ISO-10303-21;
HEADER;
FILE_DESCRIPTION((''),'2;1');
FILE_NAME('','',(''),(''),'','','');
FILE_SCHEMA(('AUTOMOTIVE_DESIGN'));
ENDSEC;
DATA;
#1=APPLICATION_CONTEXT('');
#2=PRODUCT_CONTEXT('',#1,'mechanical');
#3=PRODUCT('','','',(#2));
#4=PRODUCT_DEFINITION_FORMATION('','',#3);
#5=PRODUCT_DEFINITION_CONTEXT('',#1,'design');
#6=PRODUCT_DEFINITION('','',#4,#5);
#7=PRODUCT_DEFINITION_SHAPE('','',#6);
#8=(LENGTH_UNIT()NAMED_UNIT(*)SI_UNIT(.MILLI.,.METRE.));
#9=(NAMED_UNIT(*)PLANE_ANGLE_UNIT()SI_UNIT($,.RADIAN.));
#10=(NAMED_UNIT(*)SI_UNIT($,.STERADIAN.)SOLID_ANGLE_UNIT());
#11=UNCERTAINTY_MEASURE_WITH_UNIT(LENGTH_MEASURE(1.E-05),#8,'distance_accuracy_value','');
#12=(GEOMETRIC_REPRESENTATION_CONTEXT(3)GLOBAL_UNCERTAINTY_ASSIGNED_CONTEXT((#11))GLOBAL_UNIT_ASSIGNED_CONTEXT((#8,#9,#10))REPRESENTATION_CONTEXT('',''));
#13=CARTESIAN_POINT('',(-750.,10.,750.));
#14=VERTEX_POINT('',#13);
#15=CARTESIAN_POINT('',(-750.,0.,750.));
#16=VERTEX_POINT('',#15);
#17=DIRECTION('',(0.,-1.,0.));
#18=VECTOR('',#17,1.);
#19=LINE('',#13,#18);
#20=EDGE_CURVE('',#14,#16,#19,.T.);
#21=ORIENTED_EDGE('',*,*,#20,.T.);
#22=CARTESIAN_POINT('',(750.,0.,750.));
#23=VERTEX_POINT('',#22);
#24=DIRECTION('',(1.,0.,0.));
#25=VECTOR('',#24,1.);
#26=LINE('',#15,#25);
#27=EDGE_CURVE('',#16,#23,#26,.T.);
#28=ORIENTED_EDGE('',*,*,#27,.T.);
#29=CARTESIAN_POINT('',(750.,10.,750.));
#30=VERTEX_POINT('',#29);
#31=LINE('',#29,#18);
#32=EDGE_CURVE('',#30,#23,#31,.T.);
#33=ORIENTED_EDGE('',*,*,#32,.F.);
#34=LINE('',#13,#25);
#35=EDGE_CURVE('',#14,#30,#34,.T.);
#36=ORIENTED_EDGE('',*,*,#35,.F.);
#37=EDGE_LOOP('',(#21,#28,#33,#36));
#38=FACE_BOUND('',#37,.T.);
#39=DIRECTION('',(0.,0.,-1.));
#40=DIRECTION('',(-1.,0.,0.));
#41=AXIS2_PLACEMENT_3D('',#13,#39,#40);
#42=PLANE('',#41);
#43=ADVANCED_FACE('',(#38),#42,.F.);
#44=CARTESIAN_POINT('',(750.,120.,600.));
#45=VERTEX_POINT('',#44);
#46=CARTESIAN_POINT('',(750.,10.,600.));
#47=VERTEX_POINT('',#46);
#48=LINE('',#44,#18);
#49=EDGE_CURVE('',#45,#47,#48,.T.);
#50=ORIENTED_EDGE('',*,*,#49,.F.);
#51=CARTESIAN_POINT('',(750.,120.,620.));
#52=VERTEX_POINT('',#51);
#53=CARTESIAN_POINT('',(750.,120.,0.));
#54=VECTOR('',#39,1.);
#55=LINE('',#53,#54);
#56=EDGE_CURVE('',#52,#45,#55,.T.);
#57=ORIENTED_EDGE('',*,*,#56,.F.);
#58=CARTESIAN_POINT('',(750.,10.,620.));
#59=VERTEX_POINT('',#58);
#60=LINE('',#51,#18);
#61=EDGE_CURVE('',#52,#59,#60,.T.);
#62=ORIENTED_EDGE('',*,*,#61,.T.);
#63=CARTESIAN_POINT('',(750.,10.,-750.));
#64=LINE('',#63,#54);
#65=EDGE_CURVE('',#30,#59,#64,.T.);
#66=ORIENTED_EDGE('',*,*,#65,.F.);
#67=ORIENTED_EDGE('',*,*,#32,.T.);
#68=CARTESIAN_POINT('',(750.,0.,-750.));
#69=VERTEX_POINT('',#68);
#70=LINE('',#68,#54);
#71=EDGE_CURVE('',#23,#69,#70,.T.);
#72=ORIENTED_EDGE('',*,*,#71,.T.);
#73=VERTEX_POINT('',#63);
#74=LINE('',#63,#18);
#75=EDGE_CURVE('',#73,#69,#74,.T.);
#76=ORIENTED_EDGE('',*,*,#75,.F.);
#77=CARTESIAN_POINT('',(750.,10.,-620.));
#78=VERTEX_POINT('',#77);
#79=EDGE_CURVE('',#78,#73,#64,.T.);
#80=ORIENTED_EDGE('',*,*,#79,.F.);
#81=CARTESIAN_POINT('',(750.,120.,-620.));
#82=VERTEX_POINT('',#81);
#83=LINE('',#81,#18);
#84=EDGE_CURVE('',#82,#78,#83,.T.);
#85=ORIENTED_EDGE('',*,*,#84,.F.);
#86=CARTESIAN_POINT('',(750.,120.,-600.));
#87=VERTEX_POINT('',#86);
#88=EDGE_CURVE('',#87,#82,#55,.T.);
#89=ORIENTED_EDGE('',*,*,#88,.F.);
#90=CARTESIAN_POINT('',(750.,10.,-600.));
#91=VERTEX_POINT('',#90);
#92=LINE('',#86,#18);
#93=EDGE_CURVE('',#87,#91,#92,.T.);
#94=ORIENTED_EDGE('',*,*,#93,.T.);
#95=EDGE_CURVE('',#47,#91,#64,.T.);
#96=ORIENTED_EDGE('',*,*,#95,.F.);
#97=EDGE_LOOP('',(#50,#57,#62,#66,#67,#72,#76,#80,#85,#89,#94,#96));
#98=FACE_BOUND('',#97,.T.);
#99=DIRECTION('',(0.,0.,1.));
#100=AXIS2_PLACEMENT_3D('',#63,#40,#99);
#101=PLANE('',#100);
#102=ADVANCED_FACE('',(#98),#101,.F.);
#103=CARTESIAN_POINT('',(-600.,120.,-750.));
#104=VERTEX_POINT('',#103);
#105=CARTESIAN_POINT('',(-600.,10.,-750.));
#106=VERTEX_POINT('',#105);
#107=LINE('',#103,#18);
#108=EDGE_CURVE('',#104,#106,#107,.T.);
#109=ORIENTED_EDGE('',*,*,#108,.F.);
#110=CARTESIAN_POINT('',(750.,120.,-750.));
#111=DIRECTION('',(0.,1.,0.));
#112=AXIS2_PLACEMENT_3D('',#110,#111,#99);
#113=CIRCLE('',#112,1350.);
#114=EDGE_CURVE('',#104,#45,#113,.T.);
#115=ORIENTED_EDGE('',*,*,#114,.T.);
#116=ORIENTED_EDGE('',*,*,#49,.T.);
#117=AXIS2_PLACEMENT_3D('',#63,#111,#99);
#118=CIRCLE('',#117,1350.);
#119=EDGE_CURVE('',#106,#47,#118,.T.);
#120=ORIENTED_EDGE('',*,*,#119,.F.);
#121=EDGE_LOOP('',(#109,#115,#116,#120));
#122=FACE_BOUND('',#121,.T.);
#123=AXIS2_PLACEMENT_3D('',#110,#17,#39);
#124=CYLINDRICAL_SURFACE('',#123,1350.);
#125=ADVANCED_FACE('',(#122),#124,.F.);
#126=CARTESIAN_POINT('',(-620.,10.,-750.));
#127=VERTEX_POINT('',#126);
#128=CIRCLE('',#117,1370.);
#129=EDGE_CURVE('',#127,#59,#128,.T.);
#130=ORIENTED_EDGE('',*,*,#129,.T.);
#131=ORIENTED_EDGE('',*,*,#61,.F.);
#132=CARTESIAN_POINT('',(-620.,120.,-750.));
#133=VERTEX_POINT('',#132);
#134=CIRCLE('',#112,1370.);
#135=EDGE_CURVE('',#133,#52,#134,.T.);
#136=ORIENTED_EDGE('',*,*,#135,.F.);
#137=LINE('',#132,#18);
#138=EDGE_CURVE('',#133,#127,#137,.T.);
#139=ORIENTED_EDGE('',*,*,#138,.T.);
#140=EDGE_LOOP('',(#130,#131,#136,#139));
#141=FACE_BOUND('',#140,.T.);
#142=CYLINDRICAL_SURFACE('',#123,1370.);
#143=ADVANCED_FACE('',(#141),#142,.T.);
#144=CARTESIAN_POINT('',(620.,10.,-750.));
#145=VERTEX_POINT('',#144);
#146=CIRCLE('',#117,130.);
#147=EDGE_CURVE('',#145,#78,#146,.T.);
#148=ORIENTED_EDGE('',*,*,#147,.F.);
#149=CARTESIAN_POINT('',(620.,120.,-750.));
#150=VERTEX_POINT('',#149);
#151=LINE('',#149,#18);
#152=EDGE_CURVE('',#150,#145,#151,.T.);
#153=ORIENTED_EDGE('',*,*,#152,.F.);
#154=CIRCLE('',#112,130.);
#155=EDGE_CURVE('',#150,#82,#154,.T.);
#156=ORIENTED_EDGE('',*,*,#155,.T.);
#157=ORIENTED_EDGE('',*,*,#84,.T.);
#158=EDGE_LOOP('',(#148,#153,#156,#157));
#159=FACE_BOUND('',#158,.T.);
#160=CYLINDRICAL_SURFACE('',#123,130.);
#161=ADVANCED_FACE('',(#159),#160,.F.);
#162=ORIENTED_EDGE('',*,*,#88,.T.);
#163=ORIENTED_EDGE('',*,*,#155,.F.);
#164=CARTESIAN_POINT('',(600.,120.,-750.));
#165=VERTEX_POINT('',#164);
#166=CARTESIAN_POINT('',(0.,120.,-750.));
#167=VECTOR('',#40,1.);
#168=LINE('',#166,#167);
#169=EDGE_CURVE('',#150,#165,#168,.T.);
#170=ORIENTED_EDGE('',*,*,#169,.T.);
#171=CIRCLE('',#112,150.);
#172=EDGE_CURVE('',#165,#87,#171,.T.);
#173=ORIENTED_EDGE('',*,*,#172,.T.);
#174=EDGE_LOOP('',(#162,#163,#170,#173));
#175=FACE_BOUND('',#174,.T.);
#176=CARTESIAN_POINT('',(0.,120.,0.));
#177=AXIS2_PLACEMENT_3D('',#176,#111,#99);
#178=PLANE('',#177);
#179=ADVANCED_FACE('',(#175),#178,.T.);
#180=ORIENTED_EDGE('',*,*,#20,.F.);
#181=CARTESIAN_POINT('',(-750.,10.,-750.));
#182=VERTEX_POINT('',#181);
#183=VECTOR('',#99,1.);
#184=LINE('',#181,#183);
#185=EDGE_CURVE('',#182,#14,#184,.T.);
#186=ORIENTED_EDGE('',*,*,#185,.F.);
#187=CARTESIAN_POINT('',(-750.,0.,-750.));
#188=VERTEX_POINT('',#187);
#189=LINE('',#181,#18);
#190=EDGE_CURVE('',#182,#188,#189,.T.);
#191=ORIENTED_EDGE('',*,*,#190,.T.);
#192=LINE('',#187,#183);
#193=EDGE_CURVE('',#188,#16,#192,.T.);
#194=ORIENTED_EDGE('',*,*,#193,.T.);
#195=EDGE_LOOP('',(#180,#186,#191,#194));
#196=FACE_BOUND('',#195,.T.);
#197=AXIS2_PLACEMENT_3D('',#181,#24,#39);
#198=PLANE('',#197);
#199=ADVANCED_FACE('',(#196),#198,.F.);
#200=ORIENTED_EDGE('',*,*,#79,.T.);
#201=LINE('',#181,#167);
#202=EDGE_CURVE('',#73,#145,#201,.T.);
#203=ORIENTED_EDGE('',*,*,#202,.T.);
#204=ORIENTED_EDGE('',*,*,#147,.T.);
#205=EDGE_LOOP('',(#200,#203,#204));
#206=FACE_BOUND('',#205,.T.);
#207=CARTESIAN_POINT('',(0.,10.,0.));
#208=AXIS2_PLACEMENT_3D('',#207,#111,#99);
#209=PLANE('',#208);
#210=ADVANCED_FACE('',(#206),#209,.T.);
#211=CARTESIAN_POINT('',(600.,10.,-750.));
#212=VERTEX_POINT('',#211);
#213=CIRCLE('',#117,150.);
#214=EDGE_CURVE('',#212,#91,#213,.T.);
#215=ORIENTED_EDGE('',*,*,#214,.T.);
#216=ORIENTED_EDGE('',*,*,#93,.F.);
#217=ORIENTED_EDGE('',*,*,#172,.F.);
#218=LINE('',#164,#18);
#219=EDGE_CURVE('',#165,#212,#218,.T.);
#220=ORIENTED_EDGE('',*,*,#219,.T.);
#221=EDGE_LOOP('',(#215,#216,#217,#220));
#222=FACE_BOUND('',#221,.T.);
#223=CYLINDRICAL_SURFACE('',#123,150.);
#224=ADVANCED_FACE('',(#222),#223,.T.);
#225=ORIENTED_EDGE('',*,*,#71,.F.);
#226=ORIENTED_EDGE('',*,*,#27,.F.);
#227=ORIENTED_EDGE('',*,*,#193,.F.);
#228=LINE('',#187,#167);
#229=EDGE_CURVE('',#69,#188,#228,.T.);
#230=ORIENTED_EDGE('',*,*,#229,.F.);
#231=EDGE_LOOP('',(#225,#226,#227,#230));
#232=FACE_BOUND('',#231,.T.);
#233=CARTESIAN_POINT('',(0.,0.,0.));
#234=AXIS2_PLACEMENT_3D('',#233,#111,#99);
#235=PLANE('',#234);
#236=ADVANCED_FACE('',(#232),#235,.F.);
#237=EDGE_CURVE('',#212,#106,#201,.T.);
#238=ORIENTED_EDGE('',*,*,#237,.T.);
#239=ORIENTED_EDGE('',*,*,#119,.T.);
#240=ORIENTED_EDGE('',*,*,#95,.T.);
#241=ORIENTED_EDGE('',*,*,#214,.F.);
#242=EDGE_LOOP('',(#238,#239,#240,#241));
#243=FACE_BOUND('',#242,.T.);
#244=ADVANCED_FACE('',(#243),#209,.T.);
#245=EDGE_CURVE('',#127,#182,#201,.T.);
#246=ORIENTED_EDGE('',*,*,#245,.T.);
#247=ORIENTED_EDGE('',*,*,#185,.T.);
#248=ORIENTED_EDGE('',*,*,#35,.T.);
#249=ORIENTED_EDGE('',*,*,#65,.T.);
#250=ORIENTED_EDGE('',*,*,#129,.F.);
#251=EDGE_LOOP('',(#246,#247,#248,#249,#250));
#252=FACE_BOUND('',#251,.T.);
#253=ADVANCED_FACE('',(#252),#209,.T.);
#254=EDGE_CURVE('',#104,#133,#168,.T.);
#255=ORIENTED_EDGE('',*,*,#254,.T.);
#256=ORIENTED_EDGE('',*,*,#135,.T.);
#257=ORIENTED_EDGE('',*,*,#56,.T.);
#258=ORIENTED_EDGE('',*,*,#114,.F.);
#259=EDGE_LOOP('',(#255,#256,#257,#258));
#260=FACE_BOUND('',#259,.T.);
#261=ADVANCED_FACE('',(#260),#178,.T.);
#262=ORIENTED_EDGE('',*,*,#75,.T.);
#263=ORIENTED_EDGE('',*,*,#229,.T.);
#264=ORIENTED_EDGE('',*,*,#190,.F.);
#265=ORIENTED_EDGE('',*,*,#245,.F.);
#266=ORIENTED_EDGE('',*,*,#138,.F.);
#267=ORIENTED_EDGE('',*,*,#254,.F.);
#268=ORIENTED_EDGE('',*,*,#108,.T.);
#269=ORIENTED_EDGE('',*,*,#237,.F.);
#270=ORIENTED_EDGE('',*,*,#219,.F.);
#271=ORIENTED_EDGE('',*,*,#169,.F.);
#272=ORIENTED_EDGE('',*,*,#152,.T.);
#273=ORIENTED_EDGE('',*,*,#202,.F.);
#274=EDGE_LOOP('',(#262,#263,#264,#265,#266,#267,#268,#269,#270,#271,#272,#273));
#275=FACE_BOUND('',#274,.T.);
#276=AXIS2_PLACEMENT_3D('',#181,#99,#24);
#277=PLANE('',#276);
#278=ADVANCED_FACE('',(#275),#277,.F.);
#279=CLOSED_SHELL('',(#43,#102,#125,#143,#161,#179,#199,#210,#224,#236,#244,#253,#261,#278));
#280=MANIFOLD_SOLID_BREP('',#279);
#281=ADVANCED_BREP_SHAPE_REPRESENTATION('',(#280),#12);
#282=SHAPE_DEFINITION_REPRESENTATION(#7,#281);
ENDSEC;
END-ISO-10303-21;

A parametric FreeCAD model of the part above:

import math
import FreeCAD as App
import Part
import Sketcher
from FreeCAD import Vector
Q = App.Units.Quantity

doc = App.newDocument("Part")
body = doc.addObject("PartDesign::Body", "Body")

# Sketch on XZ plane
sketch1 = body.newObject("Sketcher::SketchObject", "Sketch")
sketch1.AttachmentSupport = (doc.getObject("XZ_Plane"), [""])
sketch1.MapMode = "FlatFace"
sketch1.addGeometry(Part.LineSegment(Vector(-750, -750, 0), Vector(-750, 750, 0)), False)
sketch1.addGeometry(Part.LineSegment(Vector(-750, 750, 0), Vector(750, 750, 0)), False)
sketch1.addGeometry(Part.LineSegment(Vector(750, 750, 0), Vector(750, -750, 0)), False)
sketch1.addGeometry(Part.LineSegment(Vector(750, -750, 0), Vector(-750, -750, 0)), False)
sketch1.addConstraint(Sketcher.Constraint("Coincident", 0, 2, 1, 1))
sketch1.addConstraint(Sketcher.Constraint("Coincident", 1, 2, 2, 1))
sketch1.addConstraint(Sketcher.Constraint("Coincident", 2, 2, 3, 1))
sketch1.addConstraint(Sketcher.Constraint("Coincident", 3, 2, 0, 1))
sketch1.addConstraint(Sketcher.Constraint("Vertical", 0))
sketch1.addConstraint(Sketcher.Constraint("Horizontal", 1))
sketch1.addConstraint(Sketcher.Constraint("Vertical", 2))
sketch1.addConstraint(Sketcher.Constraint("Horizontal", 3))
sketch1.addConstraint(Sketcher.Constraint("Symmetric", 0, 2, 2, 2, -1, 1))
sketch1.addConstraint(Sketcher.Constraint("Equal", 3, 0))
sketch1.addConstraint(Sketcher.Constraint("DistanceX", 1, 1, 1, 2, Q("1500 mm")))
pad1 = body.newObject("PartDesign::Pad", "Pad")
pad1.Profile = sketch1
pad1.Length = 10
pad1.Reversed = True

# Sketch on XZ plane
sketch2 = body.newObject("Sketcher::SketchObject", "Sketch001")
sketch2.AttachmentSupport = (doc.getObject("XZ_Plane"), [""])
sketch2.MapMode = "FlatFace"
sketch2.AttachmentOffset = App.Placement(Vector(0, 0, -10), App.Rotation())
sketch2.addGeometry(Part.ArcOfCircle(Part.Circle(Vector(750, -750, 0), Vector(0, 0, 1), 1350), math.radians(90), math.radians(180)), False)
sketch2.addGeometry(Part.LineSegment(Vector(-600, -750, 0), Vector(-620, -750, 0)), False)
sketch2.addGeometry(Part.ArcOfCircle(Part.Circle(Vector(750, -750, 0), Vector(0, 0, 1), 1370), math.radians(90), math.radians(180)), False)
sketch2.addGeometry(Part.LineSegment(Vector(750, 620, 0), Vector(750, 600, 0)), False)
sketch2.addGeometry(Part.LineSegment(Vector(620, -750, 0), Vector(600, -750, 0)), False)
sketch2.addGeometry(Part.ArcOfCircle(Part.Circle(Vector(750, -750, 0), Vector(0, 0, 1), 150), math.radians(90), math.radians(180)), False)
sketch2.addGeometry(Part.LineSegment(Vector(750, -600, 0), Vector(750, -620, 0)), False)
sketch2.addGeometry(Part.ArcOfCircle(Part.Circle(Vector(750, -750, 0), Vector(0, 0, 1), 130), math.radians(90), math.radians(180)), False)
sketch2.addConstraint(Sketcher.Constraint("Coincident", 0, 2, 1, 1))
sketch2.addConstraint(Sketcher.Constraint("Coincident", 1, 2, 2, 2))
sketch2.addConstraint(Sketcher.Constraint("Coincident", 2, 1, 3, 1))
sketch2.addConstraint(Sketcher.Constraint("Coincident", 3, 2, 0, 1))
sketch2.addConstraint(Sketcher.Constraint("Coincident", 4, 2, 5, 2))
sketch2.addConstraint(Sketcher.Constraint("Coincident", 5, 1, 6, 1))
sketch2.addConstraint(Sketcher.Constraint("Coincident", 6, 2, 7, 1))
sketch2.addConstraint(Sketcher.Constraint("Coincident", 7, 2, 4, 1))
sketch2.addConstraint(Sketcher.Constraint("Horizontal", 1))
sketch2.addConstraint(Sketcher.Constraint("Vertical", 3))
sketch2.addConstraint(Sketcher.Constraint("Horizontal", 4))
sketch2.addConstraint(Sketcher.Constraint("Vertical", 6))
sketch2.addConstraint(Sketcher.Constraint("Coincident", 2, 3, 0, 3))
sketch2.addConstraint(Sketcher.Constraint("Coincident", 5, 3, 0, 3))
sketch2.addConstraint(Sketcher.Constraint("Coincident", 7, 3, 0, 3))
sketch2.addConstraint(Sketcher.Constraint("Symmetric", 1, 2, 7, 2, -2))
sketch2.addConstraint(Sketcher.Constraint("Symmetric", 3, 2, 5, 1, -1))
sketch2.addConstraint(Sketcher.Constraint("Equal", 1, 4))
sketch2.addConstraint(Sketcher.Constraint("Radius", 0, Q("1350 mm")))
sketch2.addConstraint(Sketcher.Constraint("Radius", 2, Q("1370 mm")))
sketch2.addConstraint(Sketcher.Constraint("Radius", 5, Q("150 mm")))
sketch2.addConstraint(Sketcher.Constraint("DistanceY", 1, 2, -1, 1, Q("750 mm")))
sketch2.addConstraint(Sketcher.Constraint("DistanceX", -1, 1, 3, 2, Q("750 mm")))
pad2 = body.newObject("PartDesign::Pad", "Pad001")
pad2.Profile = sketch2
pad2.Length = 110
pad2.Reversed = True

doc.recompute()
